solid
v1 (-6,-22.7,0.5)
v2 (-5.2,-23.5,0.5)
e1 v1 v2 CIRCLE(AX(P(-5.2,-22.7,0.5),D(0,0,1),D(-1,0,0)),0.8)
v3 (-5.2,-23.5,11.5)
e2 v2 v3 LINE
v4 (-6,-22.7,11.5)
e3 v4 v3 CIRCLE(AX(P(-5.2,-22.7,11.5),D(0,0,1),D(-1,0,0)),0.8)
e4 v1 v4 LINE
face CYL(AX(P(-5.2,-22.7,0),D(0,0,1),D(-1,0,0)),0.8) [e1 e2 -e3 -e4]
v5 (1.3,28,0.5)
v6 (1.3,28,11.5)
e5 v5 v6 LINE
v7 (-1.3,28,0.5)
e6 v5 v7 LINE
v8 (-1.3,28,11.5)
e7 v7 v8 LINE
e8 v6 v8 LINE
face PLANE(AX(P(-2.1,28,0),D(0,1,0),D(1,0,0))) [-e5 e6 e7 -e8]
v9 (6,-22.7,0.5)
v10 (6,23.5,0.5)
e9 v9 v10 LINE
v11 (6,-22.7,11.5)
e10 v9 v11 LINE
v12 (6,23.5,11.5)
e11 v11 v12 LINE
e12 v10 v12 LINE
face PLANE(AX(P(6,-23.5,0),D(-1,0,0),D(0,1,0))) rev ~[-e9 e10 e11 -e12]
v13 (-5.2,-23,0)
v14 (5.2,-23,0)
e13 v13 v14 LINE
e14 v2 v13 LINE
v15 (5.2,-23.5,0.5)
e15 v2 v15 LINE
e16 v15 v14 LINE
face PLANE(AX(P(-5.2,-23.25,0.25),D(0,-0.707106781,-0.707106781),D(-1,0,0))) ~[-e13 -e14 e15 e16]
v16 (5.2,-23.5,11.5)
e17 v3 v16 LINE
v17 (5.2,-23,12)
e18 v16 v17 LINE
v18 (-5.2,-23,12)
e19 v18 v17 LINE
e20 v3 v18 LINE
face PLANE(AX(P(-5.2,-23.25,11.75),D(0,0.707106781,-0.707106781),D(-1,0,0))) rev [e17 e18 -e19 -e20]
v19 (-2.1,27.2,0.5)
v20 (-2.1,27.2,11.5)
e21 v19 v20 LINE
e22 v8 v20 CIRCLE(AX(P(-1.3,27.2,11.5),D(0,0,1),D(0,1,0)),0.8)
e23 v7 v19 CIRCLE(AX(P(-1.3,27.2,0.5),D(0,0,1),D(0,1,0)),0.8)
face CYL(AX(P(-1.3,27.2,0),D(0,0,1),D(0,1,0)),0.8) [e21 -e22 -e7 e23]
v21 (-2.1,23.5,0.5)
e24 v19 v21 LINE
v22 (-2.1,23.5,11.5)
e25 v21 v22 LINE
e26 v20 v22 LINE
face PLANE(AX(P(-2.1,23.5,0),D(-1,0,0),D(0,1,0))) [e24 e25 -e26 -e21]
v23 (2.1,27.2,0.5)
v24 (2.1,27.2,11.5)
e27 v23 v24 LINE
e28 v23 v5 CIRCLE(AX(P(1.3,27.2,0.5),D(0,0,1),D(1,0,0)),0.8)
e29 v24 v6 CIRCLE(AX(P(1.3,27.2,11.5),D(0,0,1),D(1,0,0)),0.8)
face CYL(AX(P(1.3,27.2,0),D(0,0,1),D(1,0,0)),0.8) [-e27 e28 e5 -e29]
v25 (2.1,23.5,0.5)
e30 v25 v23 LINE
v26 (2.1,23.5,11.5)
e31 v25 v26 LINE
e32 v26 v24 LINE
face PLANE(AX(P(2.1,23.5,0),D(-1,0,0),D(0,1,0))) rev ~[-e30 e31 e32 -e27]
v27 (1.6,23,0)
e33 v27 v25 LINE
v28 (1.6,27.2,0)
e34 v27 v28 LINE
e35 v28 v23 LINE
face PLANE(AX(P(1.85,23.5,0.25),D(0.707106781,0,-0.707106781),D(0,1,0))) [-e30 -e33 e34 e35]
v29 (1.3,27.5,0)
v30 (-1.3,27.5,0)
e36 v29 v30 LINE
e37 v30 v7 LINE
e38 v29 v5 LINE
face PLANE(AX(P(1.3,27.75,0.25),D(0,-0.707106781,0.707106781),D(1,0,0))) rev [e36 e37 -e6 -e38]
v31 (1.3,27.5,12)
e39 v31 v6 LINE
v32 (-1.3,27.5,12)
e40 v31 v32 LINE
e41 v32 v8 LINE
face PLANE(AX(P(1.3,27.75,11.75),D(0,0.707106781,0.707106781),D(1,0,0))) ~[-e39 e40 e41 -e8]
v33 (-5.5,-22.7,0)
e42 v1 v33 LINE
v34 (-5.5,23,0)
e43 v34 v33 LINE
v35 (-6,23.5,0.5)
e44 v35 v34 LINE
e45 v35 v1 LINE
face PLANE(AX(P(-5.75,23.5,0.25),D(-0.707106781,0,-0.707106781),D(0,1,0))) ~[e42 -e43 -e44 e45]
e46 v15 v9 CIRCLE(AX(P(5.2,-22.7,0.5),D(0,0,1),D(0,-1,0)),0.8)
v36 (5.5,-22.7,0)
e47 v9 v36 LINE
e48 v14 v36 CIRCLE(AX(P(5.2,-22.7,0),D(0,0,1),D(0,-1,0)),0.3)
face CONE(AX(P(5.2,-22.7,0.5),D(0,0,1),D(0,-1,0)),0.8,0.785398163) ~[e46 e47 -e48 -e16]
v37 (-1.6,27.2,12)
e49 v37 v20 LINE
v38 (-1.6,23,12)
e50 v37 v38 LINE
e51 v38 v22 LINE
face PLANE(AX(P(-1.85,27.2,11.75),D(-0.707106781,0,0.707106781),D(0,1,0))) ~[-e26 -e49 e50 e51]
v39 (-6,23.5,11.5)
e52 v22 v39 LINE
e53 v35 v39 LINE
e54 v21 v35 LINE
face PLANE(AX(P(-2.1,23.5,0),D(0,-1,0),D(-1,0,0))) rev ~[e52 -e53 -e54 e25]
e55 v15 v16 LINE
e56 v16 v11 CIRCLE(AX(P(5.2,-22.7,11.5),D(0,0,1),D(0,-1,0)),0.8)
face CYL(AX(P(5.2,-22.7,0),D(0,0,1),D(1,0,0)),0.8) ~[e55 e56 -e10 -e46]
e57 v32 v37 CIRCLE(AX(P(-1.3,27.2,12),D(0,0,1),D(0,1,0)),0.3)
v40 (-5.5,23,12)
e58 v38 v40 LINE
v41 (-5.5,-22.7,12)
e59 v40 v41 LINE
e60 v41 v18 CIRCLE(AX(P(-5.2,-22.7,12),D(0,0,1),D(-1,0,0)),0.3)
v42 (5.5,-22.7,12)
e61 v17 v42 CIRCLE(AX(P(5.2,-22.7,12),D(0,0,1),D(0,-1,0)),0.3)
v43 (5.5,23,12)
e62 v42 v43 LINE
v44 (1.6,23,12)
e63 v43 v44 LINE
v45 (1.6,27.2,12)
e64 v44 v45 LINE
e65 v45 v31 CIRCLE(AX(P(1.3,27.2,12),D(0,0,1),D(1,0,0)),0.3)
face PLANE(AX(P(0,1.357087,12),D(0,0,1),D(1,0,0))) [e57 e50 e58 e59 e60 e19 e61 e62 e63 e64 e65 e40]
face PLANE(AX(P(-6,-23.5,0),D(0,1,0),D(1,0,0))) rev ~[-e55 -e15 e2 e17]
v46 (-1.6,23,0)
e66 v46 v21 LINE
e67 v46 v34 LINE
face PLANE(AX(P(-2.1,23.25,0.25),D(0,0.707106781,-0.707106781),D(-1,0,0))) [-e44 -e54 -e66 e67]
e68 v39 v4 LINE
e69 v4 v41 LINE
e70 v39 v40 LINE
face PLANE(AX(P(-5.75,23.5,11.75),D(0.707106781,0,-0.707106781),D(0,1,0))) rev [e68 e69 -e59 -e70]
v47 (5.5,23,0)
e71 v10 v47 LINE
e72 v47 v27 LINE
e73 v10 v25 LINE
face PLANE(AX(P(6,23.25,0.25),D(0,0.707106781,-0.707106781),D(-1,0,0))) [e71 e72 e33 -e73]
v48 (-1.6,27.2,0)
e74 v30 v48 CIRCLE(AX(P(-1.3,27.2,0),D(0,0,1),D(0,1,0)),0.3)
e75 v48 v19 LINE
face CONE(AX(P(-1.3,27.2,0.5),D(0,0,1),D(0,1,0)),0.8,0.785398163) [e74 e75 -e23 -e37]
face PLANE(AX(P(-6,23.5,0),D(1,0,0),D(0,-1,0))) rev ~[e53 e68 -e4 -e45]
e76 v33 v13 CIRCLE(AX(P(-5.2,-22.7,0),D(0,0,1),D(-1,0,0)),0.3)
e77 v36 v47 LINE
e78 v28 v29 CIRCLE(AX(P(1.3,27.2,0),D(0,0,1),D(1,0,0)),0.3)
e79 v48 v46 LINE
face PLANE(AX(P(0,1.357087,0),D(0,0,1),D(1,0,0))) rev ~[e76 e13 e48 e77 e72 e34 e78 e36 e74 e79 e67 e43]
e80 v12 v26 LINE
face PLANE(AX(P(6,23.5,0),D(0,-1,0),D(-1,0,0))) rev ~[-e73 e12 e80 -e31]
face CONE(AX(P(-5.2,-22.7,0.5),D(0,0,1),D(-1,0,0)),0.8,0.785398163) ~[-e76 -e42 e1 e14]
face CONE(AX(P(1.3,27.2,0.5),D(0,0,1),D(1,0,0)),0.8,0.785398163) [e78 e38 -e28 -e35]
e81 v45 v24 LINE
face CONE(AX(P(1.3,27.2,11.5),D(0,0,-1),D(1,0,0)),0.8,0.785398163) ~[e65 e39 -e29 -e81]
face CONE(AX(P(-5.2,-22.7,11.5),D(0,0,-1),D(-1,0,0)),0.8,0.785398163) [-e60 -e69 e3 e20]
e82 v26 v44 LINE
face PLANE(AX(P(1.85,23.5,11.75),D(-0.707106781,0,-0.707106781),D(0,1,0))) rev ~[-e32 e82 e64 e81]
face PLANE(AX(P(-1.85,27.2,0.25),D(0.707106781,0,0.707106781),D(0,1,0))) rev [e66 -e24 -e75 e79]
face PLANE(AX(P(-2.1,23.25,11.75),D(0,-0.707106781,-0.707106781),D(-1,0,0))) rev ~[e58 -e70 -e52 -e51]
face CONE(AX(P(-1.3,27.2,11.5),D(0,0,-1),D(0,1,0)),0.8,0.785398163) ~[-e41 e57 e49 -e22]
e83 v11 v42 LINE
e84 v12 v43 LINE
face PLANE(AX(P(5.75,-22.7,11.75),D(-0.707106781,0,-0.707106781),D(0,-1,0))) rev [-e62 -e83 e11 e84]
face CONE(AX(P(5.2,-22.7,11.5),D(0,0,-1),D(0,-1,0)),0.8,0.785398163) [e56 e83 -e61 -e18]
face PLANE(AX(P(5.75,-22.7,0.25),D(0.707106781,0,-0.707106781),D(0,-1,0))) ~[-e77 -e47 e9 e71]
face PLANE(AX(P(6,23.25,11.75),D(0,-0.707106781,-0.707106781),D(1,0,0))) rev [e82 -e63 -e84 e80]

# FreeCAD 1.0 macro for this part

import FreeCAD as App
import Part
import Sketcher
from FreeCAD import Vector


def edges_at(feature, points):
    """Names of the edges that pass closest to the given points."""
    edges = feature.Shape.Edges
    near = lambda p: min(range(len(edges)), key=lambda i: edges[i].distToShape(Part.Vertex(*p))[0])
    return sorted({f"Edge{near(p) + 1}" for p in points})


def add_polygon(sketch, points):
    """Adds a closed chain of lines whose ends are joined by coincident constraints."""
    first, n = sketch.GeometryCount, len(points)
    for a, b in zip(points, points[1:] + points[:1]):
        sketch.addGeometry(Part.LineSegment(App.Vector(*a, 0), App.Vector(*b, 0)), False)
    for i in range(n):
        sketch.addConstraint(Sketcher.Constraint("Coincident", first + i, 2, first + (i + 1) % n, 1))

doc = App.newDocument("Part")
body = doc.addObject("PartDesign::Body", "Body")

# Sketch on XY plane
sketch1 = body.newObject("Sketcher::SketchObject", "Sketch")
sketch1.AttachmentSupport = (doc.getObject("XY_Plane"), [""])
sketch1.MapMode = "FlatFace"
add_polygon(sketch1, [(6, -23.5), (6, 23.5), (2.1, 23.5), (2.1, 28), (-2.1, 28), (-2.1, 23.5), (-6, 23.5), (-6, -23.5)])  # lines 0-7
sketch1.addConstraint(Sketcher.Constraint("Vertical", 0))
sketch1.addConstraint(Sketcher.Constraint("Horizontal", 1))
sketch1.addConstraint(Sketcher.Constraint("Vertical", 2))
sketch1.addConstraint(Sketcher.Constraint("Horizontal", 3))
sketch1.addConstraint(Sketcher.Constraint("Vertical", 4))
sketch1.addConstraint(Sketcher.Constraint("Horizontal", 5))
sketch1.addConstraint(Sketcher.Constraint("Vertical", 6))
sketch1.addConstraint(Sketcher.Constraint("Horizontal", 7))
sketch1.addConstraint(Sketcher.Constraint("Symmetric", 0, 2, 6, 2, -1, 1))
sketch1.addConstraint(Sketcher.Constraint("Symmetric", 1, 2, 4, 2, -2))
sketch1.addConstraint(Sketcher.Constraint("DistanceX", 7, 1, 7, 2, 12.0))
sketch1.addConstraint(Sketcher.Constraint("DistanceY", 0, 1, 0, 2, 47.0))
sketch1.addConstraint(Sketcher.Constraint("DistanceX", 1, 2, 1, 1, 3.9))
sketch1.addConstraint(Sketcher.Constraint("DistanceY", 2, 1, 2, 2, 4.5))
pad1 = body.newObject("PartDesign::Pad", "Pad")
pad1.Profile = sketch1
pad1.Length = 12
doc.recompute()

fillet = body.newObject("PartDesign::Fillet", "Fillet")
fillet.Base = (pad1, edges_at(pad1, [
    (2.1, 28, 6),
    (-2.1, 28, 6),
    (6, -23.5, 6),
    (-6, -23.5, 6),
]))
fillet.Radius = 0.8
doc.recompute()

chamfer = body.newObject("PartDesign::Chamfer", "Chamfer")
chamfer.Base = (fillet, edges_at(fillet, [
    (6, 0.4, 12),
    (5.766, -23.266, 12),
    (4.05, 23.5, 12),
    (0, -23.5, 12),
    (2.1, 25.35, 12),
    (-5.766, -23.266, 12),
    (1.866, 27.766, 12),
    (-6, 0.4, 12),
    (0, 28, 12),
    (-4.05, 23.5, 12),
    (-1.866, 27.766, 12),
    (-2.1, 25.35, 12),
    (6, 0.4, 0),
    (5.766, -23.266, 0),
    (4.05, 23.5, 0),
    (0, -23.5, 0),
    (2.1, 25.35, 0),
    (-5.766, -23.266, 0),
    (1.866, 27.766, 0),
    (-6, 0.4, 0),
    (0, 28, 0),
    (-4.05, 23.5, 0),
    (-1.866, 27.766, 0),
    (-2.1, 25.35, 0),
]))
chamfer.Size = 0.5

doc.recompute()
